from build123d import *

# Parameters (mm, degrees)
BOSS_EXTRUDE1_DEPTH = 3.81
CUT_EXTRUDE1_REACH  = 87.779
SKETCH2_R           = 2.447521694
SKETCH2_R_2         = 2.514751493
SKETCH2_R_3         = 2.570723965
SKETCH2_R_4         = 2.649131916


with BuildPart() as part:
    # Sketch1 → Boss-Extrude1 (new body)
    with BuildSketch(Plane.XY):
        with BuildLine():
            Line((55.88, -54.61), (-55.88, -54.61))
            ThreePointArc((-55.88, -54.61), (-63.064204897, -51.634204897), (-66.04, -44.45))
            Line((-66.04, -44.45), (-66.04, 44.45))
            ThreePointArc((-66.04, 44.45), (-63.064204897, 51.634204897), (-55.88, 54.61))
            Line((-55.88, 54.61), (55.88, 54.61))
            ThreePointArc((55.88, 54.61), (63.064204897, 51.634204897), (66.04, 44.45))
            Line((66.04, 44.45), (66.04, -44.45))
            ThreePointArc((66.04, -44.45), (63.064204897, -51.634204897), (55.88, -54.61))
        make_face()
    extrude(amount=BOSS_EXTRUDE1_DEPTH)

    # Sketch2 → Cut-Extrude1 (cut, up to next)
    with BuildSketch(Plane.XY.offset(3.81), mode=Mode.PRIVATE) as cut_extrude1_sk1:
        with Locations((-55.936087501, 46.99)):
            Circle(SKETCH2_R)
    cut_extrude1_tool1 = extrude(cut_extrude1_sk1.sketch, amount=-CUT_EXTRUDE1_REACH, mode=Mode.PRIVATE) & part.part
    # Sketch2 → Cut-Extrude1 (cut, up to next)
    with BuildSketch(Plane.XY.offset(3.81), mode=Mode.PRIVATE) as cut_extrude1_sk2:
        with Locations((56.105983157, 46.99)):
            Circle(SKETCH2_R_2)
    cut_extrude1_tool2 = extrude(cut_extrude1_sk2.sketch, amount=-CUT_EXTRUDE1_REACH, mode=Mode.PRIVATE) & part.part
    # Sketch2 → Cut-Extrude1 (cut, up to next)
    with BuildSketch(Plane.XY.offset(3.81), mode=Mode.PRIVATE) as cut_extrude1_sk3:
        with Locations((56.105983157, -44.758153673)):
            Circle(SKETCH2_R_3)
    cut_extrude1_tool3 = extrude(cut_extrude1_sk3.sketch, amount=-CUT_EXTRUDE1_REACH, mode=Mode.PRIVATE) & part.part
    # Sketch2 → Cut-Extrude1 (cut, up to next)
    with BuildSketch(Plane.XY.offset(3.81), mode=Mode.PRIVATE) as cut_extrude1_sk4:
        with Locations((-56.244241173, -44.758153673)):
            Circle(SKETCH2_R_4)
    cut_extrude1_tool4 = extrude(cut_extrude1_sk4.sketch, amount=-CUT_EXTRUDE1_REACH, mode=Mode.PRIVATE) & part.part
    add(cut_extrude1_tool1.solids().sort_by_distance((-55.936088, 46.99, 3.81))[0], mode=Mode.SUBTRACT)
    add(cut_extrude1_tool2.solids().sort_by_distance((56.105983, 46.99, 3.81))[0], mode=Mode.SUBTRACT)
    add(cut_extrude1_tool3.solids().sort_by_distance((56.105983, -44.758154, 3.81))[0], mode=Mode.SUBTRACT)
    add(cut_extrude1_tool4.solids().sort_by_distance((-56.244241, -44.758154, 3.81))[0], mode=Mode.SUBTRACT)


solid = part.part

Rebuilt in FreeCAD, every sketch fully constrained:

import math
import FreeCAD as App
import Part
import Sketcher
Q = App.Units.Quantity

doc = App.newDocument("Part")
body = doc.addObject("PartDesign::Body", "Body")

sketch1 = body.newObject("Sketcher::SketchObject", "Sketch")
sketch1.AttachmentSupport = (doc.getObject("XY_Plane"), [""])
sketch1.MapMode = "FlatFace"
sketch1.addGeometry([
    Part.LineSegment(App.Vector(-55.88, -54.61, 0), App.Vector(55.88, -54.61, 0)),
    Part.ArcOfCircle(Part.Circle(App.Vector(55.88, -44.45, 0), App.Vector(0, 0, 1), 10.16), math.radians(-90), math.radians(0)),
    Part.LineSegment(App.Vector(66.04, -44.45, 0), App.Vector(66.04, 44.45, 0)),
    Part.ArcOfCircle(Part.Circle(App.Vector(55.88, 44.45, 0), App.Vector(0, 0, 1), 10.16), math.radians(0), math.radians(90)),
    Part.LineSegment(App.Vector(55.88, 54.61, 0), App.Vector(-55.88, 54.61, 0)),
    Part.ArcOfCircle(Part.Circle(App.Vector(-55.88, 44.45, 0), App.Vector(0, 0, 1), 10.16), math.radians(90), math.radians(180)),
    Part.LineSegment(App.Vector(-66.04, 44.45, 0), App.Vector(-66.04, -44.45, 0)),
    Part.ArcOfCircle(Part.Circle(App.Vector(-55.88, -44.45, 0), App.Vector(0, 0, 1), 10.16), math.radians(180), math.radians(270)),
], False)
sketch1.addConstraint([
    Sketcher.Constraint("Tangent", 0, 2, 1, 1),
    Sketcher.Constraint("Tangent", 1, 2, 2, 1),
    Sketcher.Constraint("Tangent", 2, 2, 3, 1),
    Sketcher.Constraint("Tangent", 3, 2, 4, 1),
    Sketcher.Constraint("Tangent", 4, 2, 5, 1),
    Sketcher.Constraint("Tangent", 5, 2, 6, 1),
    Sketcher.Constraint("Tangent", 6, 2, 7, 1),
    Sketcher.Constraint("Tangent", 7, 2, 0, 1),
    Sketcher.Constraint("Horizontal", 0),
    Sketcher.Constraint("Vertical", 2),
    Sketcher.Constraint("Horizontal", 4),
    Sketcher.Constraint("Vertical", 6),
    Sketcher.Constraint("Equal", 1, 3),
    Sketcher.Constraint("Equal", 3, 5),
    Sketcher.Constraint("Equal", 5, 7),
    Sketcher.Constraint("Symmetric", 1, 3, 5, 3, -1, 1),
    Sketcher.Constraint("Radius", 1, Q("0.4 in")),
    Sketcher.Constraint("DistanceX", 0, 1, 0, 2, Q("4.4 in")),
    Sketcher.Constraint("DistanceY", 2, 1, 2, 2, Q("3.5 in")),
])
pad1 = body.newObject("PartDesign::Pad", "Pad")
pad1.Profile = sketch1
pad1.Length = Q("0.15 in")

sketch2 = body.newObject("Sketcher::SketchObject", "Sketch001")
sketch2.AttachmentSupport = (doc.getObject("XY_Plane"), [""])
sketch2.MapMode = "FlatFace"
sketch2.AttachmentOffset = App.Placement(App.Vector(0, 0, 0.15 * 25.4), App.Rotation())
sketch2.addGeometry(Part.Circle(App.Vector(-55.936088, 46.99, 0), App.Vector(0, 0, 1), 2.447522), False)
sketch2.addConstraint([
    Sketcher.Constraint("DistanceY", -1, 1, 0, 3, Q("1.85 in")),
    Sketcher.Constraint("Diameter", 0, Q("4.895043 mm")),
    Sketcher.Constraint("DistanceX", 0, 3, -1, 1, Q("55.936088 mm")),
])
pocket1 = body.newObject("PartDesign::Pocket", "Pocket")
pocket1.Profile = sketch2
pocket1.Type = "UpToFirst"

sketch3 = body.newObject("Sketcher::SketchObject", "Sketch002")
sketch3.AttachmentSupport = (doc.getObject("XY_Plane"), [""])
sketch3.MapMode = "FlatFace"
sketch3.AttachmentOffset = App.Placement(App.Vector(0, 0, 0.15 * 25.4), App.Rotation())
sketch3.addGeometry(Part.Circle(App.Vector(56.105983, 46.99, 0), App.Vector(0, 0, 1), 2.514751), False)
sketch3.addConstraint([
    Sketcher.Constraint("DistanceY", -1, 1, 0, 3, Q("1.85 in")),
    Sketcher.Constraint("Diameter", 0, Q("5.029503 mm")),
    Sketcher.Constraint("DistanceX", -1, 1, 0, 3, Q("56.105983 mm")),
])
pocket2 = body.newObject("PartDesign::Pocket", "Pocket001")
pocket2.Profile = sketch3
pocket2.Type = "UpToFirst"

sketch4 = body.newObject("Sketcher::SketchObject", "Sketch003")
sketch4.AttachmentSupport = (doc.getObject("XY_Plane"), [""])
sketch4.MapMode = "FlatFace"
sketch4.AttachmentOffset = App.Placement(App.Vector(0, 0, 0.15 * 25.4), App.Rotation())
sketch4.addGeometry(Part.Circle(App.Vector(56.105983, -44.758154, 0), App.Vector(0, 0, 1), 2.570724), False)
sketch4.addConstraint([
    Sketcher.Constraint("Diameter", 0, Q("5.141448 mm")),
    Sketcher.Constraint("DistanceX", -1, 1, 0, 3, Q("56.105983 mm")),
    Sketcher.Constraint("DistanceY", 0, 3, -1, 1, Q("44.758154 mm")),
])
pocket3 = body.newObject("PartDesign::Pocket", "Pocket002")
pocket3.Profile = sketch4
pocket3.Type = "UpToFirst"

sketch5 = body.newObject("Sketcher::SketchObject", "Sketch004")
sketch5.AttachmentSupport = (doc.getObject("XY_Plane"), [""])
sketch5.MapMode = "FlatFace"
sketch5.AttachmentOffset = App.Placement(App.Vector(0, 0, 0.15 * 25.4), App.Rotation())
sketch5.addGeometry(Part.Circle(App.Vector(-56.244241, -44.758154, 0), App.Vector(0, 0, 1), 2.649132), False)
sketch5.addConstraint([
    Sketcher.Constraint("Diameter", 0, Q("5.298264 mm")),
    Sketcher.Constraint("DistanceX", 0, 3, -1, 1, Q("56.244241 mm")),
    Sketcher.Constraint("DistanceY", 0, 3, -1, 1, Q("44.758154 mm")),
])
pocket4 = body.newObject("PartDesign::Pocket", "Pocket003")
pocket4.Profile = sketch5
pocket4.Type = "UpToFirst"

doc.recompute()
